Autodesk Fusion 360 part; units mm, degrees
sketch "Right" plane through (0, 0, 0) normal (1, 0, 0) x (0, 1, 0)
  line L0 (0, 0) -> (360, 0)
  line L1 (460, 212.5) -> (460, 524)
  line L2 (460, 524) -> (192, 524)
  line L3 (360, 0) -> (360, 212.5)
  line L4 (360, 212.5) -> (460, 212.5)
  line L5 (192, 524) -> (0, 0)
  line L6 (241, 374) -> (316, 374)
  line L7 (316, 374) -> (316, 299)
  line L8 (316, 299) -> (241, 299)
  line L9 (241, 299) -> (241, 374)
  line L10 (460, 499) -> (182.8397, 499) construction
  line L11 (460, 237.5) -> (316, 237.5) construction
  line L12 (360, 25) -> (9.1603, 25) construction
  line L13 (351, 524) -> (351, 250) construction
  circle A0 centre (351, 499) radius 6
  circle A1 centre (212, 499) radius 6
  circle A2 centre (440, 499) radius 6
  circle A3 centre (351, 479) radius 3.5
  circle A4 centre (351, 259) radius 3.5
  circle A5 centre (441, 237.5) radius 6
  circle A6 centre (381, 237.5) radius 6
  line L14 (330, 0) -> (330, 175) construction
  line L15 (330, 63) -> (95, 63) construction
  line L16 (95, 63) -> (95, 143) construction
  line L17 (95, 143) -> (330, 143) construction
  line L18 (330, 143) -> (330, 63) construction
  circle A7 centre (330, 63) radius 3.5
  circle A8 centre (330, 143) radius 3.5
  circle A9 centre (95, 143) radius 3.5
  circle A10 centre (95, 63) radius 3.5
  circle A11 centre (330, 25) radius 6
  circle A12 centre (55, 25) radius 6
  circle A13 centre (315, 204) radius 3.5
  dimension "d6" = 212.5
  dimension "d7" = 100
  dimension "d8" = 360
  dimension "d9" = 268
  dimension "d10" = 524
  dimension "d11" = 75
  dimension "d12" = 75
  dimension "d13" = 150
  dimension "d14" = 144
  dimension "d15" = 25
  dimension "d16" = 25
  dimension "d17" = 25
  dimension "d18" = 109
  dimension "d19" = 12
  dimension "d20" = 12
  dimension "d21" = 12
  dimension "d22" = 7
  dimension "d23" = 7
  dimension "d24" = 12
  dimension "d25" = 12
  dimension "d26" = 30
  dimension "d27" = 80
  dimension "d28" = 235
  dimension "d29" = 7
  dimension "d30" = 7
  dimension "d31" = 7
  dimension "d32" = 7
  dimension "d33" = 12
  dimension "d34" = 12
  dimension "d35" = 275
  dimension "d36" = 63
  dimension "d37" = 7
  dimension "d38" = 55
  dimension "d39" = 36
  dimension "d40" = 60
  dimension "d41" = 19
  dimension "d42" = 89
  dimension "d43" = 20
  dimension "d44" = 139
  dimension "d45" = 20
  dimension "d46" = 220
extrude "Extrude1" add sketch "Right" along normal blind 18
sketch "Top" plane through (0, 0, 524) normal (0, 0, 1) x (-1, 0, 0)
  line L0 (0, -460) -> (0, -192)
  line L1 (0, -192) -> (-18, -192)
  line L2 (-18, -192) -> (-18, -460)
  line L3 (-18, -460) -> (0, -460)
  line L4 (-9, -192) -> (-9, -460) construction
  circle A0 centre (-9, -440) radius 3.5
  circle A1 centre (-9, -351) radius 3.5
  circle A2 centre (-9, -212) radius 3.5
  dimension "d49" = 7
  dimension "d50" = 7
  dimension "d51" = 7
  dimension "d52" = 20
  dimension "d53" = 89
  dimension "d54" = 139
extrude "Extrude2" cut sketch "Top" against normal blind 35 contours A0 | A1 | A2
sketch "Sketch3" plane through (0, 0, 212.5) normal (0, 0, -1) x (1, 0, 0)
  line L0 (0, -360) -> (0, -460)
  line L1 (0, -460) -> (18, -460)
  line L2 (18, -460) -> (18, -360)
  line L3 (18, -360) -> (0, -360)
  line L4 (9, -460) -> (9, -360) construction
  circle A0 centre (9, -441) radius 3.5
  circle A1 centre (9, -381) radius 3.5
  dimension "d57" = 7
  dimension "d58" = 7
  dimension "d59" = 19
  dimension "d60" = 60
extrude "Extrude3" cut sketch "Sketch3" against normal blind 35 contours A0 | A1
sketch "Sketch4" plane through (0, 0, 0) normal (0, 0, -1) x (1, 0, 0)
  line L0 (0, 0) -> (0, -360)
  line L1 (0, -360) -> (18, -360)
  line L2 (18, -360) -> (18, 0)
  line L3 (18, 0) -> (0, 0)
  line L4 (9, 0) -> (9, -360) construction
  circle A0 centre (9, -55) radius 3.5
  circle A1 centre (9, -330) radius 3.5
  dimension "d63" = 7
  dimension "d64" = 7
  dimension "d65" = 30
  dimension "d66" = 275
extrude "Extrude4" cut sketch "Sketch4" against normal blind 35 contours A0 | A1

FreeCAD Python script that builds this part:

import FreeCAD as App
import Part
import Sketcher
Q = App.Units.Quantity

doc = App.newDocument("Part")
body = doc.addObject("PartDesign::Body", "Body")

# Sketch on YZ plane
sketch1 = body.newObject("Sketcher::SketchObject", "Sketch")
sketch1.AttachmentSupport = (doc.getObject("YZ_Plane"), [""])
sketch1.MapMode = "FlatFace"
sketch1.addGeometry(Part.LineSegment(App.Vector(192, 524, 0), App.Vector(0, 0, 0)), False)
sketch1.addGeometry(Part.LineSegment(App.Vector(0, 0, 0), App.Vector(360, 0, 0)), False)
sketch1.addGeometry(Part.LineSegment(App.Vector(360, 0, 0), App.Vector(360, 212.5, 0)), False)
sketch1.addGeometry(Part.LineSegment(App.Vector(360, 212.5, 0), App.Vector(460, 212.5, 0)), False)
sketch1.addGeometry(Part.LineSegment(App.Vector(460, 212.5, 0), App.Vector(460, 524, 0)), False)
sketch1.addGeometry(Part.LineSegment(App.Vector(460, 524, 0), App.Vector(192, 524, 0)), False)
sketch1.addGeometry(Part.Circle(App.Vector(55, 25, 0), App.Vector(0, 0, 1), 6), False)
sketch1.addGeometry(Part.Circle(App.Vector(95, 63, 0), App.Vector(0, 0, 1), 3.5), False)
sketch1.addGeometry(Part.Circle(App.Vector(95, 143, 0), App.Vector(0, 0, 1), 3.5), False)
sketch1.addGeometry(Part.Circle(App.Vector(330, 25, 0), App.Vector(0, 0, 1), 6), False)
sketch1.addGeometry(Part.Circle(App.Vector(330, 63, 0), App.Vector(0, 0, 1), 3.5), False)
sketch1.addGeometry(Part.Circle(App.Vector(330, 143, 0), App.Vector(0, 0, 1), 3.5), False)
sketch1.addGeometry(Part.Circle(App.Vector(315, 204, 0), App.Vector(0, 0, 1), 3.5), False)
sketch1.addGeometry(Part.Circle(App.Vector(351, 259, 0), App.Vector(0, 0, 1), 3.5), False)
sketch1.addGeometry(Part.Circle(App.Vector(381, 237.5, 0), App.Vector(0, 0, 1), 6), False)
sketch1.addGeometry(Part.Circle(App.Vector(441, 237.5, 0), App.Vector(0, 0, 1), 6), False)
sketch1.addGeometry(Part.Circle(App.Vector(212, 499, 0), App.Vector(0, 0, 1), 6), False)
sketch1.addGeometry(Part.LineSegment(App.Vector(241, 299, 0), App.Vector(241, 374, 0)), False)
sketch1.addGeometry(Part.LineSegment(App.Vector(241, 374, 0), App.Vector(316, 374, 0)), False)
sketch1.addGeometry(Part.LineSegment(App.Vector(316, 374, 0), App.Vector(316, 299, 0)), False)
sketch1.addGeometry(Part.LineSegment(App.Vector(316, 299, 0), App.Vector(241, 299, 0)), False)
sketch1.addGeometry(Part.Circle(App.Vector(351, 479, 0), App.Vector(0, 0, 1), 3.5), False)
sketch1.addGeometry(Part.Circle(App.Vector(351, 499, 0), App.Vector(0, 0, 1), 6), False)
sketch1.addGeometry(Part.Circle(App.Vector(440, 499, 0), App.Vector(0, 0, 1), 6), False)
sketch1.addConstraint(Sketcher.Constraint("Coincident", 0, 2, 1, 1))
sketch1.addConstraint(Sketcher.Constraint("Coincident", 1, 2, 2, 1))
sketch1.addConstraint(Sketcher.Constraint("Coincident", 2, 2, 3, 1))
sketch1.addConstraint(Sketcher.Constraint("Coincident", 3, 2, 4, 1))
sketch1.addConstraint(Sketcher.Constraint("Coincident", 4, 2, 5, 1))
sketch1.addConstraint(Sketcher.Constraint("Coincident", 5, 2, 0, 1))
sketch1.addConstraint(Sketcher.Constraint("Coincident", 17, 2, 18, 1))
sketch1.addConstraint(Sketcher.Constraint("Coincident", 18, 2, 19, 1))
sketch1.addConstraint(Sketcher.Constraint("Coincident", 19, 2, 20, 1))
sketch1.addConstraint(Sketcher.Constraint("Coincident", 20, 2, 17, 1))
sketch1.addConstraint(Sketcher.Constraint("Horizontal", 1))
sketch1.addConstraint(Sketcher.Constraint("Vertical", 2))
sketch1.addConstraint(Sketcher.Constraint("Horizontal", 3))
sketch1.addConstraint(Sketcher.Constraint("Vertical", 4))
sketch1.addConstraint(Sketcher.Constraint("Horizontal", 5))
sketch1.addConstraint(Sketcher.Constraint("Vertical", 17))
sketch1.addConstraint(Sketcher.Constraint("Horizontal", 18))
sketch1.addConstraint(Sketcher.Constraint("Vertical", 19))
sketch1.addConstraint(Sketcher.Constraint("Horizontal", 20))
sketch1.addConstraint(Sketcher.Constraint("Coincident", 0, 2, -1, 1))
sketch1.addConstraint(Sketcher.Constraint("Equal", 7, 8))
sketch1.addConstraint(Sketcher.Constraint("Equal", 6, 9))
sketch1.addConstraint(Sketcher.Constraint("Equal", 8, 10))
sketch1.addConstraint(Sketcher.Constraint("Equal", 10, 11))
sketch1.addConstraint(Sketcher.Constraint("Equal", 11, 12))
sketch1.addConstraint(Sketcher.Constraint("Equal", 12, 13))
sketch1.addConstraint(Sketcher.Constraint("Equal", 9, 14))
sketch1.addConstraint(Sketcher.Constraint("Equal", 14, 15))
sketch1.addConstraint(Sketcher.Constraint("Equal", 15, 16))
sketch1.addConstraint(Sketcher.Constraint("Equal", 13, 21))
sketch1.addConstraint(Sketcher.Constraint("Equal", 16, 22))
sketch1.addConstraint(Sketcher.Constraint("Equal", 22, 23))
sketch1.addConstraint(Sketcher.Constraint("Horizontal", 6, 3, 9, 3))
sketch1.addConstraint(Sketcher.Constraint("Horizontal", 7, 3, 10, 3))
sketch1.addConstraint(Sketcher.Constraint("Horizontal", 8, 3, 11, 3))
sketch1.addConstraint(Sketcher.Constraint("Horizontal", 14, 3, 15, 3))
sketch1.addConstraint(Sketcher.Constraint("Horizontal", 16, 3, 22, 3))
sketch1.addConstraint(Sketcher.Constraint("Horizontal", 22, 3, 23, 3))
sketch1.addConstraint(Sketcher.Constraint("Vertical", 7, 3, 8, 3))
sketch1.addConstraint(Sketcher.Constraint("Vertical", 9, 3, 10, 3))
sketch1.addConstraint(Sketcher.Constraint("Vertical", 10, 3, 11, 3))
sketch1.addConstraint(Sketcher.Constraint("Vertical", 13, 3, 21, 3))
sketch1.addConstraint(Sketcher.Constraint("Vertical", 21, 3, 22, 3))
sketch1.addConstraint(Sketcher.Constraint("Equal", 20, 17))
sketch1.addConstraint(Sketcher.Constraint("Diameter", 6, Q("12 mm")))
sketch1.addConstraint(Sketcher.Constraint("Diameter", 7, Q("7 mm")))
sketch1.addConstraint(Sketcher.Constraint("DistanceX", 1, 1, 1, 2, Q("360 mm")))
sketch1.addConstraint(Sketcher.Constraint("DistanceX", 3, 1, 3, 2, Q("100 mm")))
sketch1.addConstraint(Sketcher.Constraint("DistanceX", 5, 2, 5, 1, Q("268 mm")))
sketch1.addConstraint(Sketcher.Constraint("DistanceX", 18, 1, 18, 2, Q("75 mm")))
sketch1.addConstraint(Sketcher.Constraint("DistanceY", 2, 1, 2, 2, Q("212.5 mm")))
sketch1.addConstraint(Sketcher.Constraint("DistanceX", -1, 1, 6, 3, Q("55 mm")))
sketch1.addConstraint(Sketcher.Constraint("DistanceY", -1, 1, 6, 3, Q("25 mm")))
sketch1.addConstraint(Sketcher.Constraint("DistanceY", -1, 1, 7, 3, Q("63 mm")))
sketch1.addConstraint(Sketcher.Constraint("DistanceY", -1, 1, 4, 2, Q("524 mm")))
sketch1.addConstraint(Sketcher.Constraint("DistanceY", 7, 3, 8, 3, Q("80 mm")))
sketch1.addConstraint(Sketcher.Constraint("DistanceX", 7, 3, 9, 3, Q("235 mm")))
sketch1.addConstraint(Sketcher.Constraint("DistanceX", 6, 3, 9, 3, Q("275 mm")))
sketch1.addConstraint(Sketcher.Constraint("DistanceX", 8, 3, 12, 3, Q("220 mm")))
sketch1.addConstraint(Sketcher.Constraint("DistanceX", 12, 3, 13, 3, Q("36 mm")))
sketch1.addConstraint(Sketcher.Constraint("DistanceY", 12, 3, 13, 3, Q("55 mm")))
sketch1.addConstraint(Sketcher.Constraint("DistanceX", 13, 3, 14, 3, Q("30 mm")))
sketch1.addConstraint(Sketcher.Constraint("DistanceX", 14, 3, 15, 3, Q("60 mm")))
sketch1.addConstraint(Sketcher.Constraint("DistanceX", 16, 3, 13, 3, Q("139 mm")))
sketch1.addConstraint(Sketcher.Constraint("DistanceY", 21, 3, 16, 3, Q("20 mm")))
sketch1.addConstraint(Sketcher.Constraint("DistanceY", 13, 3, 21, 3, Q("220 mm")))
sketch1.addConstraint(Sketcher.Constraint("DistanceX", 22, 3, 23, 3, Q("89 mm")))
sketch1.addConstraint(Sketcher.Constraint("DistanceY", 2, 2, 14, 3, Q("25 mm")))
sketch1.addConstraint(Sketcher.Constraint("DistanceY", 23, 3, 4, 2, Q("25 mm")))
sketch1.addConstraint(Sketcher.Constraint("DistanceY", 17, 2, 5, 2, Q("150 mm")))
sketch1.addConstraint(Sketcher.Constraint("DistanceX", -1, 1, 17, 2, Q("241 mm")))
pad1 = body.newObject("PartDesign::Pad", "Pad")
pad1.Profile = sketch1
pad1.Length = 18

# Sketch on XY plane
sketch2 = body.newObject("Sketcher::SketchObject", "Sketch001")
sketch2.AttachmentSupport = (doc.getObject("XY_Plane"), [""])
sketch2.MapMode = "FlatFace"
sketch2.AttachmentOffset = App.Placement(App.Vector(0, 0, 524), App.Rotation())
sketch2.addGeometry(Part.Circle(App.Vector(9, 440, 0), App.Vector(0, 0, 1), 3.5), False)
sketch2.addGeometry(Part.Circle(App.Vector(9, 351, 0), App.Vector(0, 0, 1), 3.5), False)
sketch2.addGeometry(Part.Circle(App.Vector(9, 212, 0), App.Vector(0, 0, 1), 3.5), False)
sketch2.addConstraint(Sketcher.Constraint("Equal", 0, 1))
sketch2.addConstraint(Sketcher.Constraint("Equal", 1, 2))
sketch2.addConstraint(Sketcher.Constraint("Vertical", 0, 3, 1, 3))
sketch2.addConstraint(Sketcher.Constraint("Vertical", 1, 3, 2, 3))
sketch2.addConstraint(Sketcher.Constraint("Diameter", 0, Q("7 mm")))
sketch2.addConstraint(Sketcher.Constraint("DistanceY", 1, 3, 0, 3, Q("89 mm")))
sketch2.addConstraint(Sketcher.Constraint("DistanceY", 2, 3, 1, 3, Q("139 mm")))
sketch2.addConstraint(Sketcher.Constraint("DistanceX", -1, 1, 0, 3, Q("9 mm")))
sketch2.addConstraint(Sketcher.Constraint("DistanceY", -1, 1, 0, 3, Q("440 mm")))
pocket1 = body.newObject("PartDesign::Pocket", "Pocket")
pocket1.Profile = sketch2
pocket1.Length = 35

# Sketch on XY plane
sketch3 = body.newObject("Sketcher::SketchObject", "Sketch002")
sketch3.AttachmentSupport = (doc.getObject("XY_Plane"), [""])
sketch3.MapMode = "FlatFace"
sketch3.AttachmentOffset = App.Placement(App.Vector(0, 0, 212.5), App.Rotation())
sketch3.addGeometry(Part.Circle(App.Vector(9, 441, 0), App.Vector(0, 0, 1), 3.5), False)
sketch3.addGeometry(Part.Circle(App.Vector(9, 381, 0), App.Vector(0, 0, 1), 3.5), False)
sketch3.addConstraint(Sketcher.Constraint("Equal", 0, 1))
sketch3.addConstraint(Sketcher.Constraint("Vertical", 0, 3, 1, 3))
sketch3.addConstraint(Sketcher.Constraint("Diameter", 0, Q("7 mm")))
sketch3.addConstraint(Sketcher.Constraint("DistanceY", 1, 3, 0, 3, Q("60 mm")))
sketch3.addConstraint(Sketcher.Constraint("DistanceX", -1, 1, 0, 3, Q("9 mm")))
sketch3.addConstraint(Sketcher.Constraint("DistanceY", -1, 1, 0, 3, Q("441 mm")))
pocket2 = body.newObject("PartDesign::Pocket", "Pocket001")
pocket2.Profile = sketch3
pocket2.Length = 35
pocket2.Reversed = True

# Sketch on XY plane
sketch4 = body.newObject("Sketcher::SketchObject", "Sketch003")
sketch4.AttachmentSupport = (doc.getObject("XY_Plane"), [""])
sketch4.MapMode = "FlatFace"
sketch4.addGeometry(Part.Circle(App.Vector(9, 55, 0), App.Vector(0, 0, 1), 3.5), False)
sketch4.addGeometry(Part.Circle(App.Vector(9, 330, 0), App.Vector(0, 0, 1), 3.5), False)
sketch4.addConstraint(Sketcher.Constraint("Equal", 0, 1))
sketch4.addConstraint(Sketcher.Constraint("Vertical", 0, 3, 1, 3))
sketch4.addConstraint(Sketcher.Constraint("Diameter", 0, Q("7 mm")))
sketch4.addConstraint(Sketcher.Constraint("DistanceY", 0, 3, 1, 3, Q("275 mm")))
sketch4.addConstraint(Sketcher.Constraint("DistanceX", -1, 1, 0, 3, Q("9 mm")))
sketch4.addConstraint(Sketcher.Constraint("DistanceY", -1, 1, 0, 3, Q("55 mm")))
pocket3 = body.newObject("PartDesign::Pocket", "Pocket002")
pocket3.Profile = sketch4
pocket3.Length = 35
pocket3.Reversed = True

doc.recompute()
